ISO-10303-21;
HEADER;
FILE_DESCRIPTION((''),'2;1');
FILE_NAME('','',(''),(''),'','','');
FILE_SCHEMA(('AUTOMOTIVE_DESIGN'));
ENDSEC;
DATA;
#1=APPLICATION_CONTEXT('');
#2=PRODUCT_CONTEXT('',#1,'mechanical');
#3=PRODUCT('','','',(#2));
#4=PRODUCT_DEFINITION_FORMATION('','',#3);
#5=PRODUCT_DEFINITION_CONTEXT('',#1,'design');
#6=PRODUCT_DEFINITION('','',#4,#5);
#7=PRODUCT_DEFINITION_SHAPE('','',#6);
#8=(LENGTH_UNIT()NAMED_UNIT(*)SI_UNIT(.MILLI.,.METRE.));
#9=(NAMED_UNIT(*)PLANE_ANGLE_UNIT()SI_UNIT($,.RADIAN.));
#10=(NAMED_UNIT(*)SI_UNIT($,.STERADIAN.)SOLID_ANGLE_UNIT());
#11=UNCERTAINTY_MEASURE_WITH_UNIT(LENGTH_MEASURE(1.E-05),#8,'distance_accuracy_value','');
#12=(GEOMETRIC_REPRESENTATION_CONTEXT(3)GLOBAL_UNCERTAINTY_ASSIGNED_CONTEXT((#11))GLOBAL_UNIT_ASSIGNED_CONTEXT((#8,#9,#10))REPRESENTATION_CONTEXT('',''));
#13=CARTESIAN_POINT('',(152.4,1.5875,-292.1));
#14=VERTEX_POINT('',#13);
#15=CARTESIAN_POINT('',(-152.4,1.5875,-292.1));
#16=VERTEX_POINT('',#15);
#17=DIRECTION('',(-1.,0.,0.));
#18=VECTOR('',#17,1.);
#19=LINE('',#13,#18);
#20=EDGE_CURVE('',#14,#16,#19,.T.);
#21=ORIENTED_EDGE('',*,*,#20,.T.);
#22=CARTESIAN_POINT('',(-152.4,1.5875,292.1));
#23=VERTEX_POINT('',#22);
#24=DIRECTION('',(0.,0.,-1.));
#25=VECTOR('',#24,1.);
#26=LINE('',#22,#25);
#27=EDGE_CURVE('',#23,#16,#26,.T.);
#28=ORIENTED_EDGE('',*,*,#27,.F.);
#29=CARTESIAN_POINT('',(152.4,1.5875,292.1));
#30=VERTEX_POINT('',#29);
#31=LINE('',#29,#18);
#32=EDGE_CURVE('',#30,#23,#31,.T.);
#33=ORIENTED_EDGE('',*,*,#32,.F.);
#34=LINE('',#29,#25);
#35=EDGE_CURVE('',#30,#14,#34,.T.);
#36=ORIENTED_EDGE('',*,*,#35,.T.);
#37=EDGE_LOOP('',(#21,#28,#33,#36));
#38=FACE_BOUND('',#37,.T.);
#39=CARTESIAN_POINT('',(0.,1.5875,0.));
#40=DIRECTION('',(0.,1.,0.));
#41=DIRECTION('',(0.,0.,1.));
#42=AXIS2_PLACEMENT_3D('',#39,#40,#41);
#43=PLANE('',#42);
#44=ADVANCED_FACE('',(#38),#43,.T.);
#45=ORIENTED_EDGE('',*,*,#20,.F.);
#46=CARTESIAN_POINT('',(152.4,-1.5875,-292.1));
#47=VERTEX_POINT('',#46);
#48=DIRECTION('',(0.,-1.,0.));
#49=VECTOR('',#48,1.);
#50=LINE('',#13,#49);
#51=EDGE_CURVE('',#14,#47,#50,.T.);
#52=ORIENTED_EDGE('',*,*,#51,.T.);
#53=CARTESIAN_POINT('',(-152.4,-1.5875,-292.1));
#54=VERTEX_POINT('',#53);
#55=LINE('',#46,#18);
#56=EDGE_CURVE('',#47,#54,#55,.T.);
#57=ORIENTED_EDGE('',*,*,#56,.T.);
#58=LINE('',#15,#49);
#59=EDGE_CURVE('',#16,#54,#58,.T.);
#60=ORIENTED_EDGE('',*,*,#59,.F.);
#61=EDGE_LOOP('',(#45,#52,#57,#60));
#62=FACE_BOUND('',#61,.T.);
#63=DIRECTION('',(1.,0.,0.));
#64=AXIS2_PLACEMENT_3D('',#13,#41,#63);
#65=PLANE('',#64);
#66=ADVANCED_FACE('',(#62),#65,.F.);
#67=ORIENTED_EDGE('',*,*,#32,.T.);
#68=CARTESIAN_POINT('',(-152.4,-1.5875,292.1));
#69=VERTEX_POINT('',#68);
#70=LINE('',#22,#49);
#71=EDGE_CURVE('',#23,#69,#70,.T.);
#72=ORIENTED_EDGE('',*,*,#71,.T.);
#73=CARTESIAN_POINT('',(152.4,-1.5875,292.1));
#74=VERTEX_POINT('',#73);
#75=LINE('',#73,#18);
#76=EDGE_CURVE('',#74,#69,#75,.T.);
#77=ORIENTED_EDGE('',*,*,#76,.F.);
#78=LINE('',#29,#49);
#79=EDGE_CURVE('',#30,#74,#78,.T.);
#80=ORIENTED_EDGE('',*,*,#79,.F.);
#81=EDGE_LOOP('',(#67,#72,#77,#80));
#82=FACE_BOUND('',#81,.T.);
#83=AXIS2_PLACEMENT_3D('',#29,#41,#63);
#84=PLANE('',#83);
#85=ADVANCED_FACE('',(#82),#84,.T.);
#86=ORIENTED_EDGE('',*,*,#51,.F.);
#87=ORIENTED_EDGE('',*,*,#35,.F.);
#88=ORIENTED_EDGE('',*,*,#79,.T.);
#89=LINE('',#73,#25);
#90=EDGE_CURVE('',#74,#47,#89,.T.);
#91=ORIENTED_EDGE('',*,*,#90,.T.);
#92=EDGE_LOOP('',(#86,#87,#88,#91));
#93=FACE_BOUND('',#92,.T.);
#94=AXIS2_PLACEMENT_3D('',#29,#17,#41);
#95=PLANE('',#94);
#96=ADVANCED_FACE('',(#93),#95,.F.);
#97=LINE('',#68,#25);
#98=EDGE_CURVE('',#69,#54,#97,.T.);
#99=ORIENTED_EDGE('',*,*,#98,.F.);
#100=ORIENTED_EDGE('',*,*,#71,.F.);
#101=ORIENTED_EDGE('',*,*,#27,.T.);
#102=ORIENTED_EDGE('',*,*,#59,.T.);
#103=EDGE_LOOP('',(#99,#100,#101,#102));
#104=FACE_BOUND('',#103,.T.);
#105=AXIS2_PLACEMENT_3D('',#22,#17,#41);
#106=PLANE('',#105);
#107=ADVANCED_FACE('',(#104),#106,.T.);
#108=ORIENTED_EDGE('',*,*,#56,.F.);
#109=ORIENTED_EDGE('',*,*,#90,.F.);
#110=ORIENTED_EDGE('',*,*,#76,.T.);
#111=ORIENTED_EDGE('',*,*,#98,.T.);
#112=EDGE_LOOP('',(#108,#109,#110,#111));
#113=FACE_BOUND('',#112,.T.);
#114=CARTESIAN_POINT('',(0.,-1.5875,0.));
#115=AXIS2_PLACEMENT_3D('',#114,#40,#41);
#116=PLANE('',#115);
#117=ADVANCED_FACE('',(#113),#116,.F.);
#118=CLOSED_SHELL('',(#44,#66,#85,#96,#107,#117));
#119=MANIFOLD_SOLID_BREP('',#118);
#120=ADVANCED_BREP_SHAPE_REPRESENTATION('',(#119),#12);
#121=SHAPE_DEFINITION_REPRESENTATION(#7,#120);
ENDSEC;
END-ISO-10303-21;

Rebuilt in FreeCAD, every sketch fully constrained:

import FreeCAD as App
import Part
import Sketcher
from FreeCAD import Vector
Q = App.Units.Quantity


def add_polygon(sketch, points):
    """Adds a closed chain of lines whose ends are joined by coincident constraints."""
    first, n = sketch.GeometryCount, len(points)
    for a, b in zip(points, points[1:] + points[:1]):
        sketch.addGeometry(Part.LineSegment(App.Vector(*a, 0), App.Vector(*b, 0)), False)
    for i in range(n):
        sketch.addConstraint(Sketcher.Constraint("Coincident", first + i, 2, first + (i + 1) % n, 1))

doc = App.newDocument("Part")
body = doc.addObject("PartDesign::Body", "Body")

# Sketch on XZ plane
sketch1 = body.newObject("Sketcher::SketchObject", "Sketch")
sketch1.AttachmentSupport = (doc.getObject("XZ_Plane"), [""])
sketch1.MapMode = "FlatFace"
add_polygon(sketch1, [(-152, -292), (-152, 292), (152, 292), (152, -292)])  # lines 0-3
sketch1.addConstraint(Sketcher.Constraint("Vertical", 0))
sketch1.addConstraint(Sketcher.Constraint("Horizontal", 1))
sketch1.addConstraint(Sketcher.Constraint("Vertical", 2))
sketch1.addConstraint(Sketcher.Constraint("Horizontal", 3))
sketch1.addConstraint(Sketcher.Constraint("Symmetric", 0, 2, 2, 2, -1, 1))
sketch1.addConstraint(Sketcher.Constraint("DistanceX", 1, 1, 1, 2, Q("12 in")))
sketch1.addConstraint(Sketcher.Constraint("DistanceY", 0, 1, 0, 2, Q("23 in")))
pad1 = body.newObject("PartDesign::Pad", "Pad")
pad1.Profile = sketch1
pad1.Length = Q("0.125 in")
pad1.Midplane = True

doc.recompute()
